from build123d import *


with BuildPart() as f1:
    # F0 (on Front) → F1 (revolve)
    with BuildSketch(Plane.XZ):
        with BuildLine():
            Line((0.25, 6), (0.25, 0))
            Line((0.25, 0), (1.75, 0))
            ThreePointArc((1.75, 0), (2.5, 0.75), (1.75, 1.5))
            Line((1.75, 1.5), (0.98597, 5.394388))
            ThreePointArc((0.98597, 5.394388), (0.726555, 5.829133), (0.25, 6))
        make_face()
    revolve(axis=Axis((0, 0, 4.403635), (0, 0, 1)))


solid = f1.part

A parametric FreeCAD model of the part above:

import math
import FreeCAD as App
import Part
import Sketcher
from FreeCAD import Vector
Q = App.Units.Quantity

doc = App.newDocument("Part")
body = doc.addObject("PartDesign::Body", "Body")

# Sketch on XZ plane
sketch1 = doc.addObject("Sketcher::SketchObject", "Sketch")
body.addObject(sketch1)
sketch1.AttachmentSupport = (doc.XZ_Plane, [""])
sketch1.MapMode = "FlatFace"
sketch1.addGeometry([
    Part.LineSegment(Vector(0.25, 6, 0), Vector(0.25, 0, 0)),  # 0
    Part.LineSegment(Vector(0.25, 0, 0), Vector(1.75, 0, 0)),  # 1
    Part.ArcOfCircle(Part.Circle(Vector(1.75, 0.75, 0), Vector(0, 0, 1), 0.75), math.radians(-90), math.radians(90)),  # 2
    Part.LineSegment(Vector(1.75, 1.5, 0), Vector(0.98597, 5.394388, 0)),  # 3
    Part.ArcOfCircle(Part.Circle(Vector(0.25, 5.25, 0), Vector(0, 0, 1), 0.75), math.radians(11.099748), math.radians(89.999968)),  # 4
], False)
sketch1.addConstraint([
    Sketcher.Constraint("Coincident", 0, 2, 1, 1),
    Sketcher.Constraint("Tangent", 1, 2, 2, 1),
    Sketcher.Constraint("Coincident", 2, 2, 3, 1),
    Sketcher.Constraint("Tangent", 3, 2, 4, 1),
    Sketcher.Constraint("Coincident", 4, 2, 0, 1),
    Sketcher.Constraint("Vertical", 0),
    Sketcher.Constraint("Horizontal", 1),
    Sketcher.Constraint("Equal", 2, 4),
    Sketcher.Constraint("PointOnObject", 0, 2, -1),
    Sketcher.Constraint("Vertical", 4, 3, 0, 2),
    Sketcher.Constraint("Vertical", 1, 2, 2, 2),
    Sketcher.Constraint("DistanceY", 0, 2, 0, 1, Q("6 mm")),
    Sketcher.Constraint("Radius", 2, Q("0.75 mm")),
    Sketcher.Constraint("DistanceX", 1, 1, 1, 2, Q("1.5 mm")),
    Sketcher.Constraint("DistanceX", -1, 1, 2, 3, Q("1.75 mm")),
])
revolution = doc.addObject("PartDesign::Revolution", "Revolution")
body.addObject(revolution)
revolution.Profile = sketch1
revolution.ReferenceAxis = (sketch1, ["V_Axis"])
revolution.Angle = 360

doc.recompute()
